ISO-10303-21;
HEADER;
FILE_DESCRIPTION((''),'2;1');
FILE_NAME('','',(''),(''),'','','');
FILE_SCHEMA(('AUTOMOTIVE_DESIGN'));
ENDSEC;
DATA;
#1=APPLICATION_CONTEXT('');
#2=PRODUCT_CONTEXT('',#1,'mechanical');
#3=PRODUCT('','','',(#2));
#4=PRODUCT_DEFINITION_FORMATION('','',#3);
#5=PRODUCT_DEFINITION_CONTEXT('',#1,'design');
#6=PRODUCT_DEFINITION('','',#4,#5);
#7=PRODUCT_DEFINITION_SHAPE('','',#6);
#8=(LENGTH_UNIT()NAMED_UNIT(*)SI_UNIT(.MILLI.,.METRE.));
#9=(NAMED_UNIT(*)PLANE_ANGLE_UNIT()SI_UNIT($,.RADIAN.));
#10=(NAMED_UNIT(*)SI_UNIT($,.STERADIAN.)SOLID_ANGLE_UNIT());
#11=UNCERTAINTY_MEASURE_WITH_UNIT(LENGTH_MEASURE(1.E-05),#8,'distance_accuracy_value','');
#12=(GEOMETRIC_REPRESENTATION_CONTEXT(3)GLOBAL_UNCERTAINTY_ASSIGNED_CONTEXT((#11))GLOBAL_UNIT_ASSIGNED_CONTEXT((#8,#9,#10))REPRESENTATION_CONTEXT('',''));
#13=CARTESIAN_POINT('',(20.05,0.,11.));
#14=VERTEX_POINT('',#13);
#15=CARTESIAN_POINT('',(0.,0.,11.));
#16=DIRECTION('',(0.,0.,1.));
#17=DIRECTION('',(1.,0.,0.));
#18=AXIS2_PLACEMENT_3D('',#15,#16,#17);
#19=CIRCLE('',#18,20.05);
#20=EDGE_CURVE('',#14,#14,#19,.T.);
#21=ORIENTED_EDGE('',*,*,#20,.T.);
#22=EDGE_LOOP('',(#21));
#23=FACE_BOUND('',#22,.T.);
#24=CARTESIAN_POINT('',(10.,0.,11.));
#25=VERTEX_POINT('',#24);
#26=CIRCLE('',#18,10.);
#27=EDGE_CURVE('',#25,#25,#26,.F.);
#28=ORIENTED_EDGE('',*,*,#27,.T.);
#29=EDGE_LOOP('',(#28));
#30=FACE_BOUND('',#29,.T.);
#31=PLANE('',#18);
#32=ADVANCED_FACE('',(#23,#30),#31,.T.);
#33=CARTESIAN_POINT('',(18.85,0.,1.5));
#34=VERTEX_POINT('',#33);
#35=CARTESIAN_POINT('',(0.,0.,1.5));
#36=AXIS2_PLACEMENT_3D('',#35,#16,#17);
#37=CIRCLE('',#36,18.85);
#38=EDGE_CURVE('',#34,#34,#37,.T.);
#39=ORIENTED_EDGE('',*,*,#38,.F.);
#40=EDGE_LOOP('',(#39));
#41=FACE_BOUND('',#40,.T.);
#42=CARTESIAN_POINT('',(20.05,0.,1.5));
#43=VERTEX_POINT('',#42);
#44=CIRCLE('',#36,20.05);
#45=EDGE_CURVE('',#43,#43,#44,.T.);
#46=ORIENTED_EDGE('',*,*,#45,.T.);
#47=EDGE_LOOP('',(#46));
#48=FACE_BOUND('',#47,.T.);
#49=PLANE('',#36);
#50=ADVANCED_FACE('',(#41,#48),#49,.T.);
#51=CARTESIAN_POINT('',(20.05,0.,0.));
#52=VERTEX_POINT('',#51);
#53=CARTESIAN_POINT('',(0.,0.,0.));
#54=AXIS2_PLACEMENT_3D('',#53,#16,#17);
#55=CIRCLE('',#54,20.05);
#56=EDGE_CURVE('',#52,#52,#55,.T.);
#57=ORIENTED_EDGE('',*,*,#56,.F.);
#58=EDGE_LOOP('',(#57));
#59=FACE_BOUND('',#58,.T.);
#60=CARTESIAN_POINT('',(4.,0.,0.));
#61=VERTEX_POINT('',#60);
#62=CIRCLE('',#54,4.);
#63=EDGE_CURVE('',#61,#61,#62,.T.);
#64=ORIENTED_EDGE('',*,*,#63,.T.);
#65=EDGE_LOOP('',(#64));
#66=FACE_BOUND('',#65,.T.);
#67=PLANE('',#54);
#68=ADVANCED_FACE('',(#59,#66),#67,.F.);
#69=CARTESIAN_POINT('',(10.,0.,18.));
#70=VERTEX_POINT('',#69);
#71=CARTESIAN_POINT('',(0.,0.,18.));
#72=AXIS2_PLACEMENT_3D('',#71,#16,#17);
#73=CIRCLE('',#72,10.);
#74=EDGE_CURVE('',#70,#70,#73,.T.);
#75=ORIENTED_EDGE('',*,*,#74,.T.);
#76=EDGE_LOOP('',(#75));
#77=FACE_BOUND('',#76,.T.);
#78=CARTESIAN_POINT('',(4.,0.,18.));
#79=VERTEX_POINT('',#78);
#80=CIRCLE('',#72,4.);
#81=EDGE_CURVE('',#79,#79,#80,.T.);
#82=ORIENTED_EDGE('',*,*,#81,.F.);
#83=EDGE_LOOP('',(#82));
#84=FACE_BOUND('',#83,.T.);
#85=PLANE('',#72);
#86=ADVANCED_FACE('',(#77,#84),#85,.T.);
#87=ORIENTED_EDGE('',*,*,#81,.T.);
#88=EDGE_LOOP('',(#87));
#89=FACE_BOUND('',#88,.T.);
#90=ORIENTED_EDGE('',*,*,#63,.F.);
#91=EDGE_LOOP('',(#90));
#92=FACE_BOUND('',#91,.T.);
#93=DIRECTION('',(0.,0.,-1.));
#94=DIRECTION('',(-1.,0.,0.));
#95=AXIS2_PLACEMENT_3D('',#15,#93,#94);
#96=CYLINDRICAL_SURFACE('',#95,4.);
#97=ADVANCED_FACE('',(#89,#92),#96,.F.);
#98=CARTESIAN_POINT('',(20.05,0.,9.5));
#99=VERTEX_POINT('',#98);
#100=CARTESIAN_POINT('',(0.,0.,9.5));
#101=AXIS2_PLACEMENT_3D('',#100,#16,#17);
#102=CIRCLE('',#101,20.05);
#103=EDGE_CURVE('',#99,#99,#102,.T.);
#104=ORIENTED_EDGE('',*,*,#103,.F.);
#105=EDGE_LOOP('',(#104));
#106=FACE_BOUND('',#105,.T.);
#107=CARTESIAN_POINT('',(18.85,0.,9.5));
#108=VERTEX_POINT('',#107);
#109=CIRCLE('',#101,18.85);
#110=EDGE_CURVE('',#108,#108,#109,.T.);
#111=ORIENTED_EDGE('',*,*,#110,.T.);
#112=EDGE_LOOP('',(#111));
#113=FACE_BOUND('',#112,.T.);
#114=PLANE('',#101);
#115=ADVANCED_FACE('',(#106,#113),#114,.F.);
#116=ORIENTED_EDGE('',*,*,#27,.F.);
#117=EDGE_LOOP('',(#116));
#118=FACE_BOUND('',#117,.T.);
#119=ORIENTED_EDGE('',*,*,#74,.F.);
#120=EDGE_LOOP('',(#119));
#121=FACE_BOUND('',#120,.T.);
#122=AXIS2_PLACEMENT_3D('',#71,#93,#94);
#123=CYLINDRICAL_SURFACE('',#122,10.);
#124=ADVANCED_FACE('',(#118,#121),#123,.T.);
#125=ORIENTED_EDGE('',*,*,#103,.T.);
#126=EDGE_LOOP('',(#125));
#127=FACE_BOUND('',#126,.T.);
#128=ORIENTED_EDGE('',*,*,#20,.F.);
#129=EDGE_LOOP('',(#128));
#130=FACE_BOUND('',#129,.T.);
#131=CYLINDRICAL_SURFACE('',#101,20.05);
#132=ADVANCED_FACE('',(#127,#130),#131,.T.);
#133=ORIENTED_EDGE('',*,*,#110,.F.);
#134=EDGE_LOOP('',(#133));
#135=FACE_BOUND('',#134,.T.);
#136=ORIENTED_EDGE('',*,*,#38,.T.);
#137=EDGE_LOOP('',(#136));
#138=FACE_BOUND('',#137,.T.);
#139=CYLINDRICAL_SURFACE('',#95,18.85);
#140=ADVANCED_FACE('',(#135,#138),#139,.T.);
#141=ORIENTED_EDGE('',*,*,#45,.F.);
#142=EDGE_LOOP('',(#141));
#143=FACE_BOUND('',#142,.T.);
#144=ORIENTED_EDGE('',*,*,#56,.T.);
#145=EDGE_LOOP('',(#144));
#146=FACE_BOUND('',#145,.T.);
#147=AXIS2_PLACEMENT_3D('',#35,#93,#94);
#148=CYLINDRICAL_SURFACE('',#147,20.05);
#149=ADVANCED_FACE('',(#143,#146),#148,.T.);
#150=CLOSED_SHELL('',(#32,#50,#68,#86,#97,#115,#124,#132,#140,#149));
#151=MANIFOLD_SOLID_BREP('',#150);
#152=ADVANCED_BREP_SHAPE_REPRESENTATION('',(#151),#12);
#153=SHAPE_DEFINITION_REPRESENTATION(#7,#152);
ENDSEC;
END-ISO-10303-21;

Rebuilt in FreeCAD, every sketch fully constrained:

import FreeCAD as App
import Part
import Sketcher

doc = App.newDocument("Part")
body = doc.addObject("PartDesign::Body", "Body")

# Sketch on XY plane
sketch1 = doc.addObject("Sketcher::SketchObject", "Sketch")
body.addObject(sketch1)
sketch1.AttachmentSupport = (doc.XY_Plane, [""])
sketch1.MapMode = "FlatFace"
sketch1.addGeometry(Part.Circle(App.Vector(0, 0, 0), App.Vector(0, 0, 1), 18.9), False)
sketch1.addGeometry(Part.Circle(App.Vector(0, 0, 0), App.Vector(0, 0, 1), 4), False)
sketch1.addConstraint(Sketcher.Constraint("Coincident", 0, 3, -1, 1))
sketch1.addConstraint(Sketcher.Constraint("Coincident", 1, 3, -1, 1))
sketch1.addConstraint(Sketcher.Constraint("Diameter", 1, 8.0))
sketch1.addConstraint(Sketcher.Constraint("Diameter", 0, 37.7))
pad1 = doc.addObject("PartDesign::Pad", "Pad")
body.addObject(pad1)
pad1.Profile = sketch1
pad1.Length = 11

# Sketch on XY plane
sketch2 = doc.addObject("Sketcher::SketchObject", "Sketch001")
body.addObject(sketch2)
sketch2.AttachmentSupport = (doc.XY_Plane, [""])
sketch2.MapMode = "FlatFace"
sketch2.addGeometry(Part.Circle(App.Vector(0, 0, 0), App.Vector(0, 0, 1), 20), False)
sketch2.addGeometry(Part.Circle(App.Vector(0, 0, 0), App.Vector(0, 0, 1), 19), False)
sketch2.addConstraint(Sketcher.Constraint("Coincident", 0, 3, -1, 1))
sketch2.addConstraint(Sketcher.Constraint("Coincident", 1, 3, -1, 1))
sketch2.addConstraint(Sketcher.Constraint("Diameter", 0, 40.1))
sketch2.addConstraint(Sketcher.Constraint("Diameter", 1, 37.7))
pad2 = doc.addObject("PartDesign::Pad", "Pad001")
body.addObject(pad2)
pad2.Profile = sketch2
pad2.Length = 1.5

# Sketch on XY plane
sketch3 = doc.addObject("Sketcher::SketchObject", "Sketch002")
body.addObject(sketch3)
sketch3.AttachmentSupport = (doc.XY_Plane, [""])
sketch3.MapMode = "FlatFace"
sketch3.AttachmentOffset = App.Placement(App.Vector(0, 0, 11), App.Rotation())
sketch3.addGeometry(Part.Circle(App.Vector(0, 0, 0), App.Vector(0, 0, 1), 20.1), False)
sketch3.addGeometry(Part.Circle(App.Vector(0, 0, 0), App.Vector(0, 0, 1), 18.9), False)
sketch3.addGeometry(Part.Circle(App.Vector(0, 0, 0), App.Vector(0, 0, 1), 10), False)
sketch3.addGeometry(Part.Circle(App.Vector(0, 0, 0), App.Vector(0, 0, 1), 4), False)
sketch3.addConstraint(Sketcher.Constraint("Coincident", 0, 3, -1, 1))
sketch3.addConstraint(Sketcher.Constraint("Coincident", 1, 3, -1, 1))
sketch3.addConstraint(Sketcher.Constraint("Coincident", 2, 3, -1, 1))
sketch3.addConstraint(Sketcher.Constraint("Coincident", 3, 3, -1, 1))
sketch3.addConstraint(Sketcher.Constraint("Diameter", 2, 20.0))
sketch3.addConstraint(Sketcher.Constraint("Diameter", 3, 8.0))
sketch3.addConstraint(Sketcher.Constraint("Diameter", 0, 40.1))
sketch3.addConstraint(Sketcher.Constraint("Diameter", 1, 37.7))
pad3 = doc.addObject("PartDesign::Pad", "Pad002")
body.addObject(pad3)
pad3.Profile = sketch3
pad3.Length = 1.5
pad3.Reversed = True

# Sketch on XY plane
sketch4 = doc.addObject("Sketcher::SketchObject", "Sketch003")
body.addObject(sketch4)
sketch4.AttachmentSupport = (doc.XY_Plane, [""])
sketch4.MapMode = "FlatFace"
sketch4.addGeometry(Part.Circle(App.Vector(0, 0, 0), App.Vector(0, 0, 1), 10), False)
sketch4.addGeometry(Part.Circle(App.Vector(0, 0, 0), App.Vector(0, 0, 1), 4), False)
sketch4.addConstraint(Sketcher.Constraint("Coincident", 0, 3, -1, 1))
sketch4.addConstraint(Sketcher.Constraint("Coincident", 1, 3, -1, 1))
sketch4.addConstraint(Sketcher.Constraint("Diameter", 0, 20.0))
sketch4.addConstraint(Sketcher.Constraint("Diameter", 1, 8.0))
pad4 = doc.addObject("PartDesign::Pad", "Pad003")
body.addObject(pad4)
pad4.Profile = sketch4
pad4.Length = 18

doc.recompute()
